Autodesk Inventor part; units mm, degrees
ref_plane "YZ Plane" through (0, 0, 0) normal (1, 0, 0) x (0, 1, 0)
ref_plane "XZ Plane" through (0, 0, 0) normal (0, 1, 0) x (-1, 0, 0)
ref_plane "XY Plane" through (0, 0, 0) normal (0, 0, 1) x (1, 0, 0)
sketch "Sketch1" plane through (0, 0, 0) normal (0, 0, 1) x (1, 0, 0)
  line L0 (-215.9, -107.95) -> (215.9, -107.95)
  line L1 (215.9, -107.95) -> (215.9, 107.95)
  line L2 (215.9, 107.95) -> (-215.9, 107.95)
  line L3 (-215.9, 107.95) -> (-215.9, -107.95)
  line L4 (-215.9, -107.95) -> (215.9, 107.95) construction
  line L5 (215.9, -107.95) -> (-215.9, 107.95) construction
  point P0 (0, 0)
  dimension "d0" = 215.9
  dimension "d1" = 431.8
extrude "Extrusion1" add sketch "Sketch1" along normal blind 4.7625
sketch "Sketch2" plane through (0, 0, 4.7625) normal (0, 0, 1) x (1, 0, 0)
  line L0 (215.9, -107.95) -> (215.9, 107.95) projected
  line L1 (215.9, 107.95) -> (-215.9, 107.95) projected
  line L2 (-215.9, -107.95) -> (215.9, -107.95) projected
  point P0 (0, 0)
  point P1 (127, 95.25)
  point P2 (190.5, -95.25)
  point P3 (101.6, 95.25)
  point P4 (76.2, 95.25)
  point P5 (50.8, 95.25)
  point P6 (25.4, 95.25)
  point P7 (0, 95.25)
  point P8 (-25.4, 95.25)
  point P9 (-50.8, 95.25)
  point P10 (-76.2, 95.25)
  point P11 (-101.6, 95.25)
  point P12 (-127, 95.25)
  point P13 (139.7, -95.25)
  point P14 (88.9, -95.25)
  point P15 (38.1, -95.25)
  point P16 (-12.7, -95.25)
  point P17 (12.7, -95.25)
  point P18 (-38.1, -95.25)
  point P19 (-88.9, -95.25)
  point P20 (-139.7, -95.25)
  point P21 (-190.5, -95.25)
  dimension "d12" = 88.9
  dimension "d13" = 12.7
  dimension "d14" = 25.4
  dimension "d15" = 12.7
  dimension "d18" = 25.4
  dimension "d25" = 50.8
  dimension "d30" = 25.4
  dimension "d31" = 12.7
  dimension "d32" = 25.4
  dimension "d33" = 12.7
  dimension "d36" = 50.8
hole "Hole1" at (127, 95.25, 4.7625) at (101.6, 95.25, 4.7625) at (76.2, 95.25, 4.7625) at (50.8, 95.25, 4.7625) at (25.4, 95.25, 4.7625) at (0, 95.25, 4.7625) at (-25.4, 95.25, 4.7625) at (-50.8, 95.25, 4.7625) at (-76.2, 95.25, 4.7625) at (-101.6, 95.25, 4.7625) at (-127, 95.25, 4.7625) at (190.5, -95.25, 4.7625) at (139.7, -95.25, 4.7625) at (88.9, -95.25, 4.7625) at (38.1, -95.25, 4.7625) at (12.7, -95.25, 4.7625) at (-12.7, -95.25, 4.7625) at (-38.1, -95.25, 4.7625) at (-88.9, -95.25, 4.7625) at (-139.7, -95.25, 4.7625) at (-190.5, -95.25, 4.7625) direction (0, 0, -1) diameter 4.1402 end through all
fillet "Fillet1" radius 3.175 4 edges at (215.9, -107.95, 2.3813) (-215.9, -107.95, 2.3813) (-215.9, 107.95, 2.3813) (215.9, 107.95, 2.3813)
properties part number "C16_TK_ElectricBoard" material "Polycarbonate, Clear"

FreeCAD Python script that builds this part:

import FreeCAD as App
import Part
import Sketcher
from FreeCAD import Vector
Q = App.Units.Quantity


def edges_at(feature, points):
    """Names of the edges that pass closest to the given points."""
    edges = feature.Shape.Edges
    near = lambda p: min(range(len(edges)), key=lambda i: edges[i].distToShape(Part.Vertex(*p))[0])
    return sorted({f"Edge{near(p) + 1}" for p in points})


def add_polygon(sketch, points):
    """Adds a closed chain of lines whose ends are joined by coincident constraints."""
    first, n = sketch.GeometryCount, len(points)
    for a, b in zip(points, points[1:] + points[:1]):
        sketch.addGeometry(Part.LineSegment(App.Vector(*a, 0), App.Vector(*b, 0)), False)
    for i in range(n):
        sketch.addConstraint(Sketcher.Constraint("Coincident", first + i, 2, first + (i + 1) % n, 1))

doc = App.newDocument("Part")
body = doc.addObject("PartDesign::Body", "Body")

sketch1 = body.newObject("Sketcher::SketchObject", "Sketch")
sketch1.AttachmentSupport = (doc.getObject("XY_Plane"), [""])
sketch1.MapMode = "FlatFace"
add_polygon(sketch1, [(-215.9, 107.95), (-215.9, -107.95), (215.9, -107.95), (215.9, 107.95)])
sketch1.addConstraint([
    Sketcher.Constraint("Vertical", 0),
    Sketcher.Constraint("Horizontal", 1),
    Sketcher.Constraint("Vertical", 2),
    Sketcher.Constraint("Horizontal", 3),
    Sketcher.Constraint("Symmetric", 0, 2, 2, 2, -1, 1),
    Sketcher.Constraint("DistanceX", 1, 1, 1, 2, Q("17 in")),
    Sketcher.Constraint("DistanceY", 0, 2, 0, 1, Q("8.5 in")),
])
pad1 = body.newObject("PartDesign::Pad", "Pad")
pad1.Profile = sketch1
pad1.Length = Q("0.1875 in")

sketch2 = body.newObject("Sketcher::SketchObject", "Sketch001")
sketch2.AttachmentSupport = (doc.getObject("XY_Plane"), [""])
sketch2.MapMode = "FlatFace"
sketch2.AttachmentOffset = App.Placement(Vector(0, 0, 0.1875 * 25.4), App.Rotation())
sketch2.addGeometry([
    Part.Circle(Vector(127, 95.25, 0), Vector(0, 0, 1), 2.0701),
    Part.Circle(Vector(101.6, 95.25, 0), Vector(0, 0, 1), 2.0701),
    Part.Circle(Vector(76.2, 95.25, 0), Vector(0, 0, 1), 2.0701),
    Part.Circle(Vector(50.8, 95.25, 0), Vector(0, 0, 1), 2.0701),
    Part.Circle(Vector(25.4, 95.25, 0), Vector(0, 0, 1), 2.0701),
    Part.Circle(Vector(0, 95.25, 0), Vector(0, 0, 1), 2.0701),
    Part.Circle(Vector(-25.4, 95.25, 0), Vector(0, 0, 1), 2.0701),
    Part.Circle(Vector(-50.8, 95.25, 0), Vector(0, 0, 1), 2.0701),
    Part.Circle(Vector(-76.2, 95.25, 0), Vector(0, 0, 1), 2.0701),
    Part.Circle(Vector(-101.6, 95.25, 0), Vector(0, 0, 1), 2.0701),
    Part.Circle(Vector(-127, 95.25, 0), Vector(0, 0, 1), 2.0701),
    Part.Circle(Vector(190.5, -95.25, 0), Vector(0, 0, 1), 2.0701),
    Part.Circle(Vector(139.7, -95.25, 0), Vector(0, 0, 1), 2.0701),
    Part.Circle(Vector(88.9, -95.25, 0), Vector(0, 0, 1), 2.0701),
    Part.Circle(Vector(38.1, -95.25, 0), Vector(0, 0, 1), 2.0701),
    Part.Circle(Vector(12.7, -95.25, 0), Vector(0, 0, 1), 2.0701),
    Part.Circle(Vector(-12.7, -95.25, 0), Vector(0, 0, 1), 2.0701),
    Part.Circle(Vector(-38.1, -95.25, 0), Vector(0, 0, 1), 2.0701),
    Part.Circle(Vector(-88.9, -95.25, 0), Vector(0, 0, 1), 2.0701),
    Part.Circle(Vector(-139.7, -95.25, 0), Vector(0, 0, 1), 2.0701),
    Part.Circle(Vector(-190.5, -95.25, 0), Vector(0, 0, 1), 2.0701),
], False)
sketch2.addConstraint([
    Sketcher.Constraint("Equal", 0, 1),
    Sketcher.Constraint("Equal", 1, 2),
    Sketcher.Constraint("Equal", 2, 3),
    Sketcher.Constraint("Equal", 3, 4),
    Sketcher.Constraint("Equal", 4, 5),
    Sketcher.Constraint("Equal", 5, 6),
    Sketcher.Constraint("Equal", 6, 7),
    Sketcher.Constraint("Equal", 7, 8),
    Sketcher.Constraint("Equal", 8, 9),
    Sketcher.Constraint("Equal", 9, 10),
    Sketcher.Constraint("Equal", 10, 11),
    Sketcher.Constraint("Equal", 11, 12),
    Sketcher.Constraint("Equal", 12, 13),
    Sketcher.Constraint("Equal", 13, 14),
    Sketcher.Constraint("Equal", 14, 15),
    Sketcher.Constraint("Equal", 15, 16),
    Sketcher.Constraint("Equal", 16, 17),
    Sketcher.Constraint("Equal", 17, 18),
    Sketcher.Constraint("Equal", 18, 19),
    Sketcher.Constraint("Equal", 19, 20),
    Sketcher.Constraint("Symmetric", 4, 3, 6, 3, -2),
    Sketcher.Constraint("Symmetric", 3, 3, 7, 3, -2),
    Sketcher.Constraint("Symmetric", 2, 3, 8, 3, -2),
    Sketcher.Constraint("Symmetric", 1, 3, 9, 3, -2),
    Sketcher.Constraint("Symmetric", 0, 3, 10, 3, -2),
    Sketcher.Constraint("Symmetric", 15, 3, 16, 3, -2),
    Sketcher.Constraint("Symmetric", 14, 3, 17, 3, -2),
    Sketcher.Constraint("Symmetric", 13, 3, 18, 3, -2),
    Sketcher.Constraint("Symmetric", 12, 3, 19, 3, -2),
    Sketcher.Constraint("Symmetric", 11, 3, 20, 3, -2),
    Sketcher.Constraint("PointOnObject", 5, 3, -2),
    Sketcher.Constraint("Horizontal", 0, 3, 1, 3),
    Sketcher.Constraint("Horizontal", 1, 3, 2, 3),
    Sketcher.Constraint("Horizontal", 2, 3, 3, 3),
    Sketcher.Constraint("Horizontal", 3, 3, 4, 3),
    Sketcher.Constraint("Horizontal", 4, 3, 5, 3),
    Sketcher.Constraint("Horizontal", 11, 3, 12, 3),
    Sketcher.Constraint("Horizontal", 12, 3, 13, 3),
    Sketcher.Constraint("Horizontal", 13, 3, 14, 3),
    Sketcher.Constraint("Horizontal", 14, 3, 15, 3),
    Sketcher.Constraint("Diameter", 0, Q("0.163 in")),
    Sketcher.Constraint("DistanceX", -1, 1, 0, 3, Q("5 in")),
    Sketcher.Constraint("DistanceX", -1, 1, 1, 3, Q("4 in")),
    Sketcher.Constraint("DistanceX", -1, 1, 2, 3, Q("3 in")),
    Sketcher.Constraint("DistanceX", -1, 1, 3, 3, Q("2 in")),
    Sketcher.Constraint("DistanceX", -1, 1, 4, 3, Q("1 in")),
    Sketcher.Constraint("DistanceX", 12, 3, 11, 3, Q("2 in")),
    Sketcher.Constraint("DistanceX", 13, 3, 12, 3, Q("2 in")),
    Sketcher.Constraint("DistanceX", 14, 3, 13, 3, Q("2 in")),
    Sketcher.Constraint("DistanceX", 15, 3, 14, 3, Q("1 in")),
    Sketcher.Constraint("DistanceX", 16, 3, 15, 3, Q("1 in")),
    Sketcher.Constraint("DistanceY", 11, 3, 0, 3, Q("7.5 in")),
    Sketcher.Constraint("DistanceY", -1, 1, 0, 3, Q("3.75 in")),
])
doc.recompute()
hole = body.newObject("PartDesign::Hole", "Hole")
hole.Profile = sketch2
hole.ThreadType = "None"
hole.Diameter = Q("0.163 in")
hole.DepthType = "ThroughAll"
doc.recompute()

fillet = body.newObject("PartDesign::Fillet", "Fillet")
fillet.Base = (hole, edges_at(hole, [
    (215.9, -107.95, 2.381),
    (-215.9, -107.95, 2.381),
    (-215.9, 107.95, 2.381),
    (215.9, 107.95, 2.381),
]))
fillet.Radius = Q("0.125 in")

doc.recompute()
